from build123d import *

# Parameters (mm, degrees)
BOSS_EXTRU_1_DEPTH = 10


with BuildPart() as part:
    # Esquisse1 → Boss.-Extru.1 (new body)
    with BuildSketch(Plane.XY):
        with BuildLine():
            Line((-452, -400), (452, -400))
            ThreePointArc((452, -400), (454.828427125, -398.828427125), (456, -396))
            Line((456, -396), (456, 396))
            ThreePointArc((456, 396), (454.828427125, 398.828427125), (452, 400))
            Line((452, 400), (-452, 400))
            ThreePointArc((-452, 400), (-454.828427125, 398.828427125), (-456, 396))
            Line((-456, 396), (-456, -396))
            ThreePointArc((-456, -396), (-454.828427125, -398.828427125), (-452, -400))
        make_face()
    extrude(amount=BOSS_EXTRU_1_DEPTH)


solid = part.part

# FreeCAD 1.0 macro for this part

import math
import FreeCAD as App
import Part
import Sketcher

doc = App.newDocument("Part")
body = doc.addObject("PartDesign::Body", "Body")

# Sketch on XY plane
sketch1 = body.newObject("Sketcher::SketchObject", "Sketch")
sketch1.AttachmentSupport = (doc.getObject("XY_Plane"), [""])
sketch1.MapMode = "FlatFace"
sketch1.addGeometry([
    Part.LineSegment(App.Vector(-452, -400, 0), App.Vector(452, -400, 0)),  # 0
    Part.ArcOfCircle(Part.Circle(App.Vector(452, -396, 0), App.Vector(0, 0, 1), 4), math.radians(-90), math.radians(0)),  # 1
    Part.LineSegment(App.Vector(456, -396, 0), App.Vector(456, 396, 0)),  # 2
    Part.ArcOfCircle(Part.Circle(App.Vector(452, 396, 0), App.Vector(0, 0, 1), 4), math.radians(0), math.radians(90)),  # 3
    Part.LineSegment(App.Vector(452, 400, 0), App.Vector(-452, 400, 0)),  # 4
    Part.ArcOfCircle(Part.Circle(App.Vector(-452, 396, 0), App.Vector(0, 0, 1), 4), math.radians(90), math.radians(180)),  # 5
    Part.LineSegment(App.Vector(-456, 396, 0), App.Vector(-456, -396, 0)),  # 6
    Part.ArcOfCircle(Part.Circle(App.Vector(-452, -396, 0), App.Vector(0, 0, 1), 4), math.radians(180), math.radians(270)),  # 7
], False)
sketch1.addConstraint([
    Sketcher.Constraint("Tangent", 0, 2, 1, 1),
    Sketcher.Constraint("Tangent", 1, 2, 2, 1),
    Sketcher.Constraint("Tangent", 2, 2, 3, 1),
    Sketcher.Constraint("Tangent", 3, 2, 4, 1),
    Sketcher.Constraint("Tangent", 4, 2, 5, 1),
    Sketcher.Constraint("Tangent", 5, 2, 6, 1),
    Sketcher.Constraint("Tangent", 6, 2, 7, 1),
    Sketcher.Constraint("Tangent", 7, 2, 0, 1),
    Sketcher.Constraint("Horizontal", 0),
    Sketcher.Constraint("Vertical", 2),
    Sketcher.Constraint("Horizontal", 4),
    Sketcher.Constraint("Vertical", 6),
    Sketcher.Constraint("Equal", 1, 3),
    Sketcher.Constraint("Equal", 3, 5),
    Sketcher.Constraint("Equal", 5, 7),
    Sketcher.Constraint("Symmetric", 1, 3, 5, 3, -1, 1),
    Sketcher.Constraint("Radius", 1, 4.0),
    Sketcher.Constraint("DistanceX", 0, 1, 0, 2, 904.0),
    Sketcher.Constraint("DistanceY", 2, 1, 2, 2, 792.0),
])
pad1 = body.newObject("PartDesign::Pad", "Pad")
pad1.Profile = sketch1
pad1.Length = 10

doc.recompute()
